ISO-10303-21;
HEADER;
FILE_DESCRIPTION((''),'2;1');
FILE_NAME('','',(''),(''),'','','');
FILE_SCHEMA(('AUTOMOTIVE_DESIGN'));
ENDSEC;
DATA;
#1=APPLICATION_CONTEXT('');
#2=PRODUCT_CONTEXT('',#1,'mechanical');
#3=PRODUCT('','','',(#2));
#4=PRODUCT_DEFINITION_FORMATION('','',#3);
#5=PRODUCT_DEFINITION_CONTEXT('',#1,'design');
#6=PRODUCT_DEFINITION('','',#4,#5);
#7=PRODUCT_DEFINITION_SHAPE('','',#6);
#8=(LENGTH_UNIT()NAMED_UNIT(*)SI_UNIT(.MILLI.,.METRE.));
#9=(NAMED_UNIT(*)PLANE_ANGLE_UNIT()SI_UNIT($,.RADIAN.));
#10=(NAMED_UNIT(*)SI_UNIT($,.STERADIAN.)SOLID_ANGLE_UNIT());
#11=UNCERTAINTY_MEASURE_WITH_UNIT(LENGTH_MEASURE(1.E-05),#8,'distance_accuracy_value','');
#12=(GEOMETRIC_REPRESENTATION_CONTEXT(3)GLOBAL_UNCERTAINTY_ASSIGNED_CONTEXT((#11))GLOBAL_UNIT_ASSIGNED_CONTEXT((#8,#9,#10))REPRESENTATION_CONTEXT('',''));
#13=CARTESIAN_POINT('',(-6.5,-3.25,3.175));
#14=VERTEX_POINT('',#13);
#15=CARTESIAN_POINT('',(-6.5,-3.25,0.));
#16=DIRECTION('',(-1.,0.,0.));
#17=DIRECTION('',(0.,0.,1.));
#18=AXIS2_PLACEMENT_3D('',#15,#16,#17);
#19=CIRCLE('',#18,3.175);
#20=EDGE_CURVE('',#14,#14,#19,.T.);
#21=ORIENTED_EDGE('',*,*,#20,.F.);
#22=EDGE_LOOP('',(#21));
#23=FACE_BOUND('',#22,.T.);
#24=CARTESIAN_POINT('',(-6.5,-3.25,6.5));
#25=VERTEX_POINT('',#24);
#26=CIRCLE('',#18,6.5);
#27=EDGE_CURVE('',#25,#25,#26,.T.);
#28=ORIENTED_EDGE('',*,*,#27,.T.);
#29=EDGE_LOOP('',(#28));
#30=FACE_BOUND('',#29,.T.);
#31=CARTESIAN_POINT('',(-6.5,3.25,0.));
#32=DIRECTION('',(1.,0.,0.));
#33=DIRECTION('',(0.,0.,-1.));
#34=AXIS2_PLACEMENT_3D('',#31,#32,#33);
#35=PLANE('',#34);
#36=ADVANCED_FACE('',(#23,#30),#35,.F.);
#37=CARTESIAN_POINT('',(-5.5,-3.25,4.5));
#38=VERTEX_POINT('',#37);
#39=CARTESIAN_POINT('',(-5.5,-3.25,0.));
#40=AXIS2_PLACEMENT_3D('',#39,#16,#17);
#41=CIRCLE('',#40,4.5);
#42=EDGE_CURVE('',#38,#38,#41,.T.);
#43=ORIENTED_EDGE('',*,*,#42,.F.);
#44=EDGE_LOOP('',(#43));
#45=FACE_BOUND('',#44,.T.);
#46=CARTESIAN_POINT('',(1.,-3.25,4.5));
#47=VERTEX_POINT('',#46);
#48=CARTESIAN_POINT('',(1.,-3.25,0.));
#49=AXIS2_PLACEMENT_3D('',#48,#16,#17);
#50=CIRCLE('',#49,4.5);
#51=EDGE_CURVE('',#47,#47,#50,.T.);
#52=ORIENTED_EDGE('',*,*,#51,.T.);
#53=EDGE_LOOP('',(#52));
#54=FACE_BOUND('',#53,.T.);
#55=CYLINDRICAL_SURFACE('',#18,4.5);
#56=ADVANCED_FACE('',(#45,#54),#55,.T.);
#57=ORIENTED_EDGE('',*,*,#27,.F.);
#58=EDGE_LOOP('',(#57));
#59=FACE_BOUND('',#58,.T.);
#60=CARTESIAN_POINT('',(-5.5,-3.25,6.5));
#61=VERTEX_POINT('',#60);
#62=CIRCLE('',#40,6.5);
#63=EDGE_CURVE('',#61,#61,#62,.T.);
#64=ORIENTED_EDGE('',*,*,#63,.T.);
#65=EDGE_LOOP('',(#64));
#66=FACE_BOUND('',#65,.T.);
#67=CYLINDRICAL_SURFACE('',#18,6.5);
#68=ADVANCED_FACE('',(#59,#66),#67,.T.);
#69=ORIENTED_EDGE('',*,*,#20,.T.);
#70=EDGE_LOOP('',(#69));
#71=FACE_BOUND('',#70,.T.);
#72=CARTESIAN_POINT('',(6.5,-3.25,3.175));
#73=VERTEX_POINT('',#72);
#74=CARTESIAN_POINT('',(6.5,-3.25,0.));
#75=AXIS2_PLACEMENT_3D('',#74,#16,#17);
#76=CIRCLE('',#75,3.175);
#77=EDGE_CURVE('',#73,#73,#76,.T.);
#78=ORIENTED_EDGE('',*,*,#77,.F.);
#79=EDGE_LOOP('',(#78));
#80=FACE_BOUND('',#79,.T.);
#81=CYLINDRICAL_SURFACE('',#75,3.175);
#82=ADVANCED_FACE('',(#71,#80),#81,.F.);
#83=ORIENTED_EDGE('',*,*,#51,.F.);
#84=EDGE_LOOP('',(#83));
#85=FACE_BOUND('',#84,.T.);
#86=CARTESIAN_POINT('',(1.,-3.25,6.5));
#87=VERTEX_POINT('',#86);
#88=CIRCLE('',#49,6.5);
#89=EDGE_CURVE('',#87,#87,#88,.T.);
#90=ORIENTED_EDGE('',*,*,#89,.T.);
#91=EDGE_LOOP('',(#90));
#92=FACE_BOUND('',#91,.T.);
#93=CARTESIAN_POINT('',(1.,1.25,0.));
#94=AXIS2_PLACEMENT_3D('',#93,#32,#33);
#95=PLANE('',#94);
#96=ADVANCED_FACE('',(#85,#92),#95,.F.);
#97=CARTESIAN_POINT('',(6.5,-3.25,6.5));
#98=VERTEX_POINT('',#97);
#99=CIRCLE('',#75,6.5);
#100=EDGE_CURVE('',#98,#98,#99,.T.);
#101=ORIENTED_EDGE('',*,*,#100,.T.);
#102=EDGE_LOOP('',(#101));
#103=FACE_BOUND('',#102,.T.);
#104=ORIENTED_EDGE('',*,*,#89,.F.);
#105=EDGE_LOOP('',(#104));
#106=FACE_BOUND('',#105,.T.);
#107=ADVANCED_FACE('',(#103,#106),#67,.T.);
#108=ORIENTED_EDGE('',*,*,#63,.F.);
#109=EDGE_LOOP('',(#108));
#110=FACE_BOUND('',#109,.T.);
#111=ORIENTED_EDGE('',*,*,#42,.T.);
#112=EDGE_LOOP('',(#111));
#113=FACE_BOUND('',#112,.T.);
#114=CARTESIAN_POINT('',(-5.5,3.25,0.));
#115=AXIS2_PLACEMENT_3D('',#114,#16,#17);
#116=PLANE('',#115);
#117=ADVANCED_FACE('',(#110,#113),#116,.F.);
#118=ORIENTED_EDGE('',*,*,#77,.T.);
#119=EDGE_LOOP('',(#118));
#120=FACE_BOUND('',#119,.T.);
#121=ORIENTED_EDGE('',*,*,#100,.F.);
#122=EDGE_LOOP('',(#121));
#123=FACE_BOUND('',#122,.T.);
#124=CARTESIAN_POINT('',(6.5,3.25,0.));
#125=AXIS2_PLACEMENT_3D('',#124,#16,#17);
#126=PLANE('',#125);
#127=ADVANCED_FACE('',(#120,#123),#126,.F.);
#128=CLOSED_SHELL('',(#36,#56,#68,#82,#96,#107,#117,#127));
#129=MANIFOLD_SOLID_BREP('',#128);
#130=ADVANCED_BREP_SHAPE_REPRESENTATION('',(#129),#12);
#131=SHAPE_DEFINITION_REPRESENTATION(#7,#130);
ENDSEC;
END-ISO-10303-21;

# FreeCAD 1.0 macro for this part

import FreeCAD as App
import Part
import Sketcher
Q = App.Units.Quantity

doc = App.newDocument("Part")
body = doc.addObject("PartDesign::Body", "Body")

sketch1 = body.newObject("Sketcher::SketchObject", "Sketch")
sketch1.AttachmentSupport = (doc.getObject("XY_Plane"), [""])
sketch1.MapMode = "FlatFace"
sketch1.addGeometry(Part.LineSegment(App.Vector(-6.5, -3.2, 0), App.Vector(6.5, -3.2, 0)), False)
sketch1.addGeometry(Part.LineSegment(App.Vector(6.5, -3.2, 0), App.Vector(6.5, 3.2, 0)), False)
sketch1.addGeometry(Part.LineSegment(App.Vector(6.5, 3.2, 0), App.Vector(1, 3.2, 0)), False)
sketch1.addGeometry(Part.LineSegment(App.Vector(1, 3.2, 0), App.Vector(1, 1.2, 0)), False)
sketch1.addGeometry(Part.LineSegment(App.Vector(1, 1.2, 0), App.Vector(-5.5, 1.2, 0)), False)
sketch1.addGeometry(Part.LineSegment(App.Vector(-5.5, 1.2, 0), App.Vector(-5.5, 3.2, 0)), False)
sketch1.addGeometry(Part.LineSegment(App.Vector(-5.5, 3.2, 0), App.Vector(-6.5, 3.2, 0)), False)
sketch1.addGeometry(Part.LineSegment(App.Vector(-6.5, 3.2, 0), App.Vector(-6.5, -3.2, 0)), False)
sketch1.addGeometry(Part.LineSegment(App.Vector(-6.5, -3.2, 0), App.Vector(6.5, -3.2, 0)), True)
sketch1.addConstraint(Sketcher.Constraint("Coincident", 0, 2, 1, 1))
sketch1.addConstraint(Sketcher.Constraint("Coincident", 1, 2, 2, 1))
sketch1.addConstraint(Sketcher.Constraint("Coincident", 2, 2, 3, 1))
sketch1.addConstraint(Sketcher.Constraint("Coincident", 3, 2, 4, 1))
sketch1.addConstraint(Sketcher.Constraint("Coincident", 4, 2, 5, 1))
sketch1.addConstraint(Sketcher.Constraint("Coincident", 5, 2, 6, 1))
sketch1.addConstraint(Sketcher.Constraint("Coincident", 6, 2, 7, 1))
sketch1.addConstraint(Sketcher.Constraint("Coincident", 7, 2, 0, 1))
sketch1.addConstraint(Sketcher.Constraint("Horizontal", 0))
sketch1.addConstraint(Sketcher.Constraint("Vertical", 1))
sketch1.addConstraint(Sketcher.Constraint("Horizontal", 2))
sketch1.addConstraint(Sketcher.Constraint("Vertical", 3))
sketch1.addConstraint(Sketcher.Constraint("Horizontal", 4))
sketch1.addConstraint(Sketcher.Constraint("Vertical", 5))
sketch1.addConstraint(Sketcher.Constraint("Horizontal", 6))
sketch1.addConstraint(Sketcher.Constraint("Vertical", 7))
sketch1.addConstraint(Sketcher.Constraint("Horizontal", 8))
sketch1.addConstraint(Sketcher.Constraint("Coincident", 8, 1, 7, 2))
sketch1.addConstraint(Sketcher.Constraint("Symmetric", 0, 2, 6, 2, -1, 1))
sketch1.addConstraint(Sketcher.Constraint("Symmetric", 1, 2, 8, 2, -1))
sketch1.addConstraint(Sketcher.Constraint("Equal", 4, 1))
sketch1.addConstraint(Sketcher.Constraint("DistanceX", 0, 1, 0, 2, Q("13 mm")))
sketch1.addConstraint(Sketcher.Constraint("DistanceX", 6, 2, 6, 1, Q("1 mm")))
sketch1.addConstraint(Sketcher.Constraint("DistanceY", 3, 2, 3, 1, Q("2 mm")))
sketch1.addConstraint(Sketcher.Constraint("DistanceX", 2, 2, 2, 1, Q("5.5 mm")))
revolution = body.newObject("PartDesign::Revolution", "Revolution")
revolution.Profile = sketch1
revolution.ReferenceAxis = (sketch1, ["Axis0"])
revolution.Angle = 360

sketch2 = body.newObject("Sketcher::SketchObject", "Sketch001")
sketch2.AttachmentSupport = (doc.getObject("YZ_Plane"), [""])
sketch2.MapMode = "FlatFace"
sketch2.AttachmentOffset = App.Placement(App.Vector(0, 0, -6.5), App.Rotation())
sketch2.addGeometry(Part.Circle(App.Vector(-3.2, 0, 0), App.Vector(0, 0, 1), 3.2), False)
sketch2.addConstraint(Sketcher.Constraint("PointOnObject", 0, 3, -1))
sketch2.addConstraint(Sketcher.Constraint("Diameter", 0, Q("6.35 mm")))
sketch2.addConstraint(Sketcher.Constraint("DistanceX", 0, 3, -1, 1, Q("3.25 mm")))
pocket1 = body.newObject("PartDesign::Pocket", "Pocket")
pocket1.Profile = sketch2
pocket1.Type = "ThroughAll"
pocket1.Reversed = True

doc.recompute()
